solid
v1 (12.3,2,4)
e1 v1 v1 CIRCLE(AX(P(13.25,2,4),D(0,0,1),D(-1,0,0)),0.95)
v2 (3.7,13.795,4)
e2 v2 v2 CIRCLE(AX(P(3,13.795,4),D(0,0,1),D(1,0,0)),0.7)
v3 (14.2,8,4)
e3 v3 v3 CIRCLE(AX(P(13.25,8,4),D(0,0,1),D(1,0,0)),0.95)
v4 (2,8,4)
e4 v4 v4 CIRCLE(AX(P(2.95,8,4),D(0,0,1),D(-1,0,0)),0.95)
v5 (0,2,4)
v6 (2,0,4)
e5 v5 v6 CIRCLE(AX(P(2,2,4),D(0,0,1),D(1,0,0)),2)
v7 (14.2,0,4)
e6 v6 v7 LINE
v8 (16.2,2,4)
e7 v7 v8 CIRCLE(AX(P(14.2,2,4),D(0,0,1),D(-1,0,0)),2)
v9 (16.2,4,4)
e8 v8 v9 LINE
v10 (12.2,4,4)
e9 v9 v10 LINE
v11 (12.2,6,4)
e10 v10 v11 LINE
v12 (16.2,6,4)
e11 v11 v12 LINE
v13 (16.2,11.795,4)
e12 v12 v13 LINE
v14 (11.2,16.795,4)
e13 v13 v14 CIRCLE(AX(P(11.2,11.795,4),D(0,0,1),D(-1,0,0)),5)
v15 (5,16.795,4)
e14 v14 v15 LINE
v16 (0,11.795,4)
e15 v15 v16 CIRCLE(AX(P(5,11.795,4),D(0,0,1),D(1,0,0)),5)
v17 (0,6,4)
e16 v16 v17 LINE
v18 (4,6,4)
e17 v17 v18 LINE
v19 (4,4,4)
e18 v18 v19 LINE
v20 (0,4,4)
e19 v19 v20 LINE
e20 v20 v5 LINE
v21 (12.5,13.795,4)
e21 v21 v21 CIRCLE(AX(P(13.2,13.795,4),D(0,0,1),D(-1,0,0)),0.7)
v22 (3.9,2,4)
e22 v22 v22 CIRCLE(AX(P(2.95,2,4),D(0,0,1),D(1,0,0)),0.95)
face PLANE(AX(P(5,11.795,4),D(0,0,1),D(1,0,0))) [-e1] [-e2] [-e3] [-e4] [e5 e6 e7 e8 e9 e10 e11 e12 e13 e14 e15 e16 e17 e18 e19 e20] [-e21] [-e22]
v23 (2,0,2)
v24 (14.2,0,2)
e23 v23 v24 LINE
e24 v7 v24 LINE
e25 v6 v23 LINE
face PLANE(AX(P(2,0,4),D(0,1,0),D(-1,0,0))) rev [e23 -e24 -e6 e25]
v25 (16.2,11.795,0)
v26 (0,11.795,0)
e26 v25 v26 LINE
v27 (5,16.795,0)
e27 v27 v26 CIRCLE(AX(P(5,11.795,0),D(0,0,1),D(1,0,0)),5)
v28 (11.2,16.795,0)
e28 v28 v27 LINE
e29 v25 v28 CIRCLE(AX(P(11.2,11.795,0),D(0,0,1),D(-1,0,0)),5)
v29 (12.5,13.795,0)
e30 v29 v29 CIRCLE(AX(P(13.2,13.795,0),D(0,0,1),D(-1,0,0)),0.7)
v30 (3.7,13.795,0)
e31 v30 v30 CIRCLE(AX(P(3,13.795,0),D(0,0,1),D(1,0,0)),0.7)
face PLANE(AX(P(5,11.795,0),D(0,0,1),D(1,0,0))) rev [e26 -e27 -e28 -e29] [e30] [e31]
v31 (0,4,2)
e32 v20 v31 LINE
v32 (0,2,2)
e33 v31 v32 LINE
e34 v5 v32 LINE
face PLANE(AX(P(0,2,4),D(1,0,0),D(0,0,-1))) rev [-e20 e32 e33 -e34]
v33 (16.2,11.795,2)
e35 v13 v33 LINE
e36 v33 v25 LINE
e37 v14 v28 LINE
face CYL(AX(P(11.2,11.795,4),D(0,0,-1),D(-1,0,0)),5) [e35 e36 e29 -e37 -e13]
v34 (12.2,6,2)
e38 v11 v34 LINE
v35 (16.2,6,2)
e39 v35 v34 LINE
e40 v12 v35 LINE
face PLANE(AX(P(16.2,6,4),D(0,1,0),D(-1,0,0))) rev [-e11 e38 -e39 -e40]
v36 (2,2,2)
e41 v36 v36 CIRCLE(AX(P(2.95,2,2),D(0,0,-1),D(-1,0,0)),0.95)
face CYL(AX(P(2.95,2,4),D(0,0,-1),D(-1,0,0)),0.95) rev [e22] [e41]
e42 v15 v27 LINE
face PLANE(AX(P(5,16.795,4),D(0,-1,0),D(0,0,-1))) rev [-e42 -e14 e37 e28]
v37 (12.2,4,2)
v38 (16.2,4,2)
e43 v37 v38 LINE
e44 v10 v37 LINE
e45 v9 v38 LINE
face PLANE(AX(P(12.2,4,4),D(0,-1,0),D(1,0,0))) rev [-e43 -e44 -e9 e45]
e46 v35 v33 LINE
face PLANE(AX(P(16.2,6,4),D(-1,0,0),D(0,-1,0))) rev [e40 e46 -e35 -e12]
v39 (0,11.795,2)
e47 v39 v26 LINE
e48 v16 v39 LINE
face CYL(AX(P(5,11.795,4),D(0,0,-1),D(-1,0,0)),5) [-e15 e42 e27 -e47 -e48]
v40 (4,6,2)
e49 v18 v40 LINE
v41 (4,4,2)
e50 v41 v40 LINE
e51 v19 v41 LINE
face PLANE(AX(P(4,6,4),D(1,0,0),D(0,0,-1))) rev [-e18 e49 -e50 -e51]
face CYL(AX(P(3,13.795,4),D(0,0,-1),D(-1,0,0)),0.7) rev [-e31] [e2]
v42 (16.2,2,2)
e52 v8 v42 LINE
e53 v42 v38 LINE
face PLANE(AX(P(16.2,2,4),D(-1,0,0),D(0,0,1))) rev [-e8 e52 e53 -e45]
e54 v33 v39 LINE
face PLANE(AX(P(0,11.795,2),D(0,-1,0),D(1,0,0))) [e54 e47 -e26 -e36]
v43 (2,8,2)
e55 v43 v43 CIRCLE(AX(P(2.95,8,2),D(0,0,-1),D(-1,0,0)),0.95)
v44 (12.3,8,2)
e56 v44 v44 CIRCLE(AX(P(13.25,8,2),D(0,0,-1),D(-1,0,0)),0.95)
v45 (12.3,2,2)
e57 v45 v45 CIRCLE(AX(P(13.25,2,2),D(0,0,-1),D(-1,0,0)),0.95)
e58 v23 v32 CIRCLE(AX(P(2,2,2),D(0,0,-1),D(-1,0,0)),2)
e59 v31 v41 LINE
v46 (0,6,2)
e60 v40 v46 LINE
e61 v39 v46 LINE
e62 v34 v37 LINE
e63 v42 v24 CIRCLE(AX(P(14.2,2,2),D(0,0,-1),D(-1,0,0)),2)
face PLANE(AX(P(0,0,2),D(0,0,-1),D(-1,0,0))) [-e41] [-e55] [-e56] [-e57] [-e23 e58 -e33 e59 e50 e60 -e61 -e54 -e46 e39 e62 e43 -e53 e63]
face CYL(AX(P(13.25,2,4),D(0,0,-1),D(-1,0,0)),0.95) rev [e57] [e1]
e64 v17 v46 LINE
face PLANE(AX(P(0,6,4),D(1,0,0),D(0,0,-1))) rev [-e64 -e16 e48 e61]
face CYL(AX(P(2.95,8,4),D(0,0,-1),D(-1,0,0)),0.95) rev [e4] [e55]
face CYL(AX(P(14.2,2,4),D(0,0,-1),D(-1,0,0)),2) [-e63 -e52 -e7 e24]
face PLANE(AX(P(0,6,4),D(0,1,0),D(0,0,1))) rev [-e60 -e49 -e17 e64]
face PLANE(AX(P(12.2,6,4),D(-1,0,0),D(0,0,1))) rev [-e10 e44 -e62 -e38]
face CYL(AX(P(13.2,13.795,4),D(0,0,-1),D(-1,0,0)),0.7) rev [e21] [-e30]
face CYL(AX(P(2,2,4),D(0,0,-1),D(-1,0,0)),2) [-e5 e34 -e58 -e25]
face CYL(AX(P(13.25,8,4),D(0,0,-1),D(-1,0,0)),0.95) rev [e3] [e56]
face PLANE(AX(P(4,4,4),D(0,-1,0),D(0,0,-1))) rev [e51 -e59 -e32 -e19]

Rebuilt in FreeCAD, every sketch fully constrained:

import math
import FreeCAD as App
import Part
import Sketcher

V = App.Vector
Q = App.Units.Quantity


def add_polygon(sketch, points):
    """Adds a closed chain of lines whose ends are joined by coincident constraints."""
    first, n = sketch.GeometryCount, len(points)
    for a, b in zip(points, points[1:] + points[:1]):
        sketch.addGeometry(Part.LineSegment(App.Vector(*a, 0), App.Vector(*b, 0)), False)
    for i in range(n):
        sketch.addConstraint(Sketcher.Constraint("Coincident", first + i, 2, first + (i + 1) % n, 1))

doc = App.newDocument("Part")
body = doc.addObject("PartDesign::Body", "Body")

sketch1 = body.newObject("Sketcher::SketchObject", "Sketch")
sketch1.AttachmentSupport = (doc.getObject("XY_Plane"), [""])
sketch1.MapMode = "FlatFace"
sketch1.addGeometry(Part.LineSegment(V(0, 11.795, 0), V(0, 6, 0)), False)
sketch1.addGeometry(Part.LineSegment(V(0, 6, 0), V(4, 6, 0)), False)
sketch1.addGeometry(Part.LineSegment(V(4, 6, 0), V(4, 4, 0)), False)
sketch1.addGeometry(Part.LineSegment(V(4, 4, 0), V(0, 4, 0)), False)
sketch1.addGeometry(Part.LineSegment(V(0, 4, 0), V(0, 2, 0)), False)
sketch1.addGeometry(Part.ArcOfCircle(Part.Circle(V(2, 2, 0), V(0, 0, 1), 2), math.radians(-180), math.radians(-90)), False)
sketch1.addGeometry(Part.LineSegment(V(2, 0, 0), V(14.2, 0, 0)), False)
sketch1.addGeometry(Part.ArcOfCircle(Part.Circle(V(14.2, 2, 0), V(0, 0, 1), 2), math.radians(-90), math.radians(0)), False)
sketch1.addGeometry(Part.LineSegment(V(16.2, 2, 0), V(16.2, 4, 0)), False)
sketch1.addGeometry(Part.LineSegment(V(16.2, 4, 0), V(12.2, 4, 0)), False)
sketch1.addGeometry(Part.LineSegment(V(12.2, 4, 0), V(12.2, 6, 0)), False)
sketch1.addGeometry(Part.LineSegment(V(12.2, 6, 0), V(16.2, 6, 0)), False)
sketch1.addGeometry(Part.LineSegment(V(16.2, 6, 0), V(16.2, 11.795, 0)), False)
sketch1.addGeometry(Part.ArcOfCircle(Part.Circle(V(11.2, 11.795, 0), V(0, 0, 1), 5), math.radians(0), math.radians(90)), False)
sketch1.addGeometry(Part.LineSegment(V(11.2, 16.795, 0), V(5, 16.795, 0)), False)
sketch1.addGeometry(Part.ArcOfCircle(Part.Circle(V(5, 11.795, 0), V(0, 0, 1), 5), math.radians(90), math.radians(180)), False)
sketch1.addGeometry(Part.Circle(V(13.25, 2, 0), V(0, 0, 1), 0.95), False)
sketch1.addGeometry(Part.Circle(V(2.95, 2, 0), V(0, 0, 1), 0.95), False)
sketch1.addGeometry(Part.Circle(V(13.25, 8, 0), V(0, 0, 1), 0.95), False)
sketch1.addGeometry(Part.Circle(V(13.2, 13.795, 0), V(0, 0, 1), 0.7), False)
sketch1.addGeometry(Part.Circle(V(2.95, 8, 0), V(0, 0, 1), 0.95), False)
sketch1.addGeometry(Part.Circle(V(3, 13.795, 0), V(0, 0, 1), 0.7), False)
sketch1.addConstraint(Sketcher.Constraint("Coincident", 0, 2, 1, 1))
sketch1.addConstraint(Sketcher.Constraint("Coincident", 1, 2, 2, 1))
sketch1.addConstraint(Sketcher.Constraint("Coincident", 2, 2, 3, 1))
sketch1.addConstraint(Sketcher.Constraint("Coincident", 3, 2, 4, 1))
sketch1.addConstraint(Sketcher.Constraint("Tangent", 4, 2, 5, 1))
sketch1.addConstraint(Sketcher.Constraint("Tangent", 5, 2, 6, 1))
sketch1.addConstraint(Sketcher.Constraint("Tangent", 6, 2, 7, 1))
sketch1.addConstraint(Sketcher.Constraint("Tangent", 7, 2, 8, 1))
sketch1.addConstraint(Sketcher.Constraint("Coincident", 8, 2, 9, 1))
sketch1.addConstraint(Sketcher.Constraint("Coincident", 9, 2, 10, 1))
sketch1.addConstraint(Sketcher.Constraint("Coincident", 10, 2, 11, 1))
sketch1.addConstraint(Sketcher.Constraint("Coincident", 11, 2, 12, 1))
sketch1.addConstraint(Sketcher.Constraint("Tangent", 12, 2, 13, 1))
sketch1.addConstraint(Sketcher.Constraint("Tangent", 13, 2, 14, 1))
sketch1.addConstraint(Sketcher.Constraint("Tangent", 14, 2, 15, 1))
sketch1.addConstraint(Sketcher.Constraint("Tangent", 15, 2, 0, 1))
sketch1.addConstraint(Sketcher.Constraint("Vertical", 0))
sketch1.addConstraint(Sketcher.Constraint("Horizontal", 1))
sketch1.addConstraint(Sketcher.Constraint("Vertical", 2))
sketch1.addConstraint(Sketcher.Constraint("Horizontal", 3))
sketch1.addConstraint(Sketcher.Constraint("Vertical", 4))
sketch1.addConstraint(Sketcher.Constraint("Horizontal", 6))
sketch1.addConstraint(Sketcher.Constraint("Vertical", 8))
sketch1.addConstraint(Sketcher.Constraint("Horizontal", 9))
sketch1.addConstraint(Sketcher.Constraint("Vertical", 10))
sketch1.addConstraint(Sketcher.Constraint("Horizontal", 11))
sketch1.addConstraint(Sketcher.Constraint("Vertical", 12))
sketch1.addConstraint(Sketcher.Constraint("Horizontal", 14))
sketch1.addConstraint(Sketcher.Constraint("Equal", 5, 7))
sketch1.addConstraint(Sketcher.Constraint("Equal", 13, 15))
sketch1.addConstraint(Sketcher.Constraint("Equal", 16, 17))
sketch1.addConstraint(Sketcher.Constraint("Equal", 17, 18))
sketch1.addConstraint(Sketcher.Constraint("Equal", 18, 20))
sketch1.addConstraint(Sketcher.Constraint("Equal", 19, 21))
sketch1.addConstraint(Sketcher.Constraint("PointOnObject", 0, 2, -2))
sketch1.addConstraint(Sketcher.Constraint("PointOnObject", 3, 2, -2))
sketch1.addConstraint(Sketcher.Constraint("PointOnObject", 5, 2, -1))
sketch1.addConstraint(Sketcher.Constraint("Horizontal", 7, 3, 16, 3))
sketch1.addConstraint(Sketcher.Constraint("Horizontal", 16, 3, 17, 3))
sketch1.addConstraint(Sketcher.Constraint("Horizontal", 18, 3, 20, 3))
sketch1.addConstraint(Sketcher.Constraint("Horizontal", 19, 3, 21, 3))
sketch1.addConstraint(Sketcher.Constraint("Horizontal", 3, 2, 8, 2))
sketch1.addConstraint(Sketcher.Constraint("Horizontal", 1, 2, 10, 2))
sketch1.addConstraint(Sketcher.Constraint("Vertical", 16, 3, 18, 3))
sketch1.addConstraint(Sketcher.Constraint("Vertical", 17, 3, 20, 3))
sketch1.addConstraint(Sketcher.Constraint("Vertical", 8, 2, 11, 2))
sketch1.addConstraint(Sketcher.Constraint("Equal", 3, 9))
sketch1.addConstraint(Sketcher.Constraint("Equal", 2, 4))
sketch1.addConstraint(Sketcher.Constraint("Radius", 5, Q("2 mm")))
sketch1.addConstraint(Sketcher.Constraint("Radius", 13, Q("5 mm")))
sketch1.addConstraint(Sketcher.Constraint("Diameter", 16, Q("1.9 mm")))
sketch1.addConstraint(Sketcher.Constraint("Diameter", 19, Q("1.4 mm")))
sketch1.addConstraint(Sketcher.Constraint("DistanceX", 1, 1, 1, 2, Q("4 mm")))
sketch1.addConstraint(Sketcher.Constraint("DistanceY", 2, 2, 2, 1, Q("2 mm")))
sketch1.addConstraint(Sketcher.Constraint("DistanceX", 6, 1, 6, 2, Q("12.2 mm")))
sketch1.addConstraint(Sketcher.Constraint("DistanceY", -1, 1, 18, 3, Q("8 mm")))
sketch1.addConstraint(Sketcher.Constraint("DistanceX", -1, 1, 21, 3, Q("3 mm")))
sketch1.addConstraint(Sketcher.Constraint("DistanceX", 13, 3, 19, 3, Q("2 mm")))
sketch1.addConstraint(Sketcher.Constraint("DistanceY", 13, 3, 19, 3, Q("2 mm")))
sketch1.addConstraint(Sketcher.Constraint("DistanceX", 17, 3, 16, 3, Q("10.3 mm")))
sketch1.addConstraint(Sketcher.Constraint("DistanceY", 0, 2, 0, 1, Q("5.795 mm")))
sketch1.addConstraint(Sketcher.Constraint("DistanceX", -1, 1, 16, 3, Q("13.25 mm")))
pad1 = body.newObject("PartDesign::Pad", "Pad")
pad1.Profile = sketch1
pad1.Length = 4

sketch2 = body.newObject("Sketcher::SketchObject", "Sketch001")
sketch2.AttachmentSupport = (doc.getObject("XY_Plane"), [""])
sketch2.MapMode = "FlatFace"
add_polygon(sketch2, [(0, 11.795), (0, 0), (16.2, 0), (16.2, 11.795)])
sketch2.addConstraint(Sketcher.Constraint("Vertical", 0))
sketch2.addConstraint(Sketcher.Constraint("Horizontal", 1))
sketch2.addConstraint(Sketcher.Constraint("Vertical", 2))
sketch2.addConstraint(Sketcher.Constraint("Horizontal", 3))
sketch2.addConstraint(Sketcher.Constraint("Coincident", 0, 2, -1, 1))
sketch2.addConstraint(Sketcher.Constraint("DistanceX", 1, 1, 1, 2, Q("16.2 mm")))
sketch2.addConstraint(Sketcher.Constraint("DistanceY", 0, 2, 0, 1, Q("11.795 mm")))
pocket1 = body.newObject("PartDesign::Pocket", "Pocket")
pocket1.Profile = sketch2
pocket1.Length = 2
pocket1.Reversed = True

doc.recompute()
